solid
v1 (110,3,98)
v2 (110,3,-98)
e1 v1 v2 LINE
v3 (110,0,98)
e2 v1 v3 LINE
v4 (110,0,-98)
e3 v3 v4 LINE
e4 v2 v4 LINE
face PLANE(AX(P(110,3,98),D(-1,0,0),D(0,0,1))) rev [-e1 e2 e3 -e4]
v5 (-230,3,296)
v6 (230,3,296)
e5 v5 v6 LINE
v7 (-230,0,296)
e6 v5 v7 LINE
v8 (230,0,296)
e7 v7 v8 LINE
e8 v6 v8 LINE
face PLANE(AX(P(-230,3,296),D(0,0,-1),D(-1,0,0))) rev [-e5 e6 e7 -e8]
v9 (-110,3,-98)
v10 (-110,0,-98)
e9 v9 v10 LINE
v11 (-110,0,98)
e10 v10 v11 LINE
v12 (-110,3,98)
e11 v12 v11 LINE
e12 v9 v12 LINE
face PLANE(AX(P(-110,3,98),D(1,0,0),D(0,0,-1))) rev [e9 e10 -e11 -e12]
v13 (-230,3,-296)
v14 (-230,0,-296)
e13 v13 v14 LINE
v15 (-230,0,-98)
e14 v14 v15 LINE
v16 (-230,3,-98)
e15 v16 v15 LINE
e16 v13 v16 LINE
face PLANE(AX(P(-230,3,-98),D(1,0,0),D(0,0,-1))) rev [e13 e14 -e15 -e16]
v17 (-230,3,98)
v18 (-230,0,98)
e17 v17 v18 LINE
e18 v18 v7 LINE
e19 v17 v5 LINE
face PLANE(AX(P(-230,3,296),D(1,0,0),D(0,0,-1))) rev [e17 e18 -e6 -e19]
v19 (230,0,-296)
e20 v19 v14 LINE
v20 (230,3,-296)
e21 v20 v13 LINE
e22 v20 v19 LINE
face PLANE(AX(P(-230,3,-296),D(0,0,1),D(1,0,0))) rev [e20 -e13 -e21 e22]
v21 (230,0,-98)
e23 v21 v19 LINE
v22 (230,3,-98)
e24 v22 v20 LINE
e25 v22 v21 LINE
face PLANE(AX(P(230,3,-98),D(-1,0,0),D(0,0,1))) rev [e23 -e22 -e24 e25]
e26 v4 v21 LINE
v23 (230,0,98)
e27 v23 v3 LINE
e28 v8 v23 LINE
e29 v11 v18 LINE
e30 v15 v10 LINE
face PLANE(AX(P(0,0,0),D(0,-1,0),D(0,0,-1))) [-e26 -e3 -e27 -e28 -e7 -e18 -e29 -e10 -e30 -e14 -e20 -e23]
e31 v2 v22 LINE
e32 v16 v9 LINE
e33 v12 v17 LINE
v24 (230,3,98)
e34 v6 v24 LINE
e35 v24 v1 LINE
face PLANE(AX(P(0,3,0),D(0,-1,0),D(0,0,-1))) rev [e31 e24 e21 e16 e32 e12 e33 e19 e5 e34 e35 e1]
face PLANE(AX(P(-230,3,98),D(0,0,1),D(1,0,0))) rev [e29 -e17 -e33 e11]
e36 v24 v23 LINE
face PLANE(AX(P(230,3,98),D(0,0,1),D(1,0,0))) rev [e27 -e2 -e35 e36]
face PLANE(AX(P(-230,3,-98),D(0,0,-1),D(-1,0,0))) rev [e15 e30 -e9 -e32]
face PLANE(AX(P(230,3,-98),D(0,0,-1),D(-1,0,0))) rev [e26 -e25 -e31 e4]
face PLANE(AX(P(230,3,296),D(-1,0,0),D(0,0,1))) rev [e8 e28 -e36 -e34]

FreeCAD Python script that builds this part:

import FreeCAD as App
import Part
import Sketcher
from FreeCAD import Vector

doc = App.newDocument("Part")
body = doc.addObject("PartDesign::Body", "Body")

# Sketch on XZ plane
sketch1 = body.newObject("Sketcher::SketchObject", "Sketch")
sketch1.AttachmentSupport = (doc.getObject("XZ_Plane"), [""])
sketch1.MapMode = "FlatFace"
sketch1.addGeometry([
    Part.LineSegment(Vector(-230, 296, 0), Vector(230, 296, 0)),  # 0
    Part.LineSegment(Vector(230, 296, 0), Vector(230, 98, 0)),  # 1
    Part.LineSegment(Vector(230, 98, 0), Vector(110, 98, 0)),  # 2
    Part.LineSegment(Vector(110, 98, 0), Vector(110, -98, 0)),  # 3
    Part.LineSegment(Vector(110, -98, 0), Vector(230, -98, 0)),  # 4
    Part.LineSegment(Vector(230, -98, 0), Vector(230, -296, 0)),  # 5
    Part.LineSegment(Vector(230, -296, 0), Vector(-230, -296, 0)),  # 6
    Part.LineSegment(Vector(-230, -296, 0), Vector(-230, -98, 0)),  # 7
    Part.LineSegment(Vector(-230, -98, 0), Vector(-110, -98, 0)),  # 8
    Part.LineSegment(Vector(-110, -98, 0), Vector(-110, 98, 0)),  # 9
    Part.LineSegment(Vector(-110, 98, 0), Vector(-230, 98, 0)),  # 10
    Part.LineSegment(Vector(-230, 98, 0), Vector(-230, 296, 0)),  # 11
], False)
sketch1.addConstraint([
    Sketcher.Constraint("Coincident", 0, 2, 1, 1),
    Sketcher.Constraint("Coincident", 1, 2, 2, 1),
    Sketcher.Constraint("Coincident", 2, 2, 3, 1),
    Sketcher.Constraint("Coincident", 3, 2, 4, 1),
    Sketcher.Constraint("Coincident", 4, 2, 5, 1),
    Sketcher.Constraint("Coincident", 5, 2, 6, 1),
    Sketcher.Constraint("Coincident", 6, 2, 7, 1),
    Sketcher.Constraint("Coincident", 7, 2, 8, 1),
    Sketcher.Constraint("Coincident", 8, 2, 9, 1),
    Sketcher.Constraint("Coincident", 9, 2, 10, 1),
    Sketcher.Constraint("Coincident", 10, 2, 11, 1),
    Sketcher.Constraint("Coincident", 11, 2, 0, 1),
    Sketcher.Constraint("Horizontal", 0),
    Sketcher.Constraint("Vertical", 1),
    Sketcher.Constraint("Horizontal", 2),
    Sketcher.Constraint("Vertical", 3),
    Sketcher.Constraint("Horizontal", 4),
    Sketcher.Constraint("Vertical", 5),
    Sketcher.Constraint("Horizontal", 6),
    Sketcher.Constraint("Vertical", 7),
    Sketcher.Constraint("Horizontal", 8),
    Sketcher.Constraint("Vertical", 9),
    Sketcher.Constraint("Horizontal", 10),
    Sketcher.Constraint("Vertical", 11),
    Sketcher.Constraint("Symmetric", 0, 2, 6, 2, -1, 1),
    Sketcher.Constraint("Symmetric", 2, 2, 8, 2, -1, 1),
    Sketcher.Constraint("Symmetric", 4, 2, 10, 2, -1, 1),
    Sketcher.Constraint("Symmetric", 4, 2, 7, 2, -2),
    Sketcher.Constraint("DistanceX", 0, 1, 0, 2, 460.0),
    Sketcher.Constraint("DistanceX", 2, 2, 2, 1, 120.0),
    Sketcher.Constraint("DistanceY", 1, 2, 1, 1, 198.0),
    Sketcher.Constraint("DistanceY", 3, 2, 3, 1, 196.0),
])
pad1 = body.newObject("PartDesign::Pad", "Pad")
pad1.Profile = sketch1
pad1.Length = 3
pad1.Reversed = True

doc.recompute()
